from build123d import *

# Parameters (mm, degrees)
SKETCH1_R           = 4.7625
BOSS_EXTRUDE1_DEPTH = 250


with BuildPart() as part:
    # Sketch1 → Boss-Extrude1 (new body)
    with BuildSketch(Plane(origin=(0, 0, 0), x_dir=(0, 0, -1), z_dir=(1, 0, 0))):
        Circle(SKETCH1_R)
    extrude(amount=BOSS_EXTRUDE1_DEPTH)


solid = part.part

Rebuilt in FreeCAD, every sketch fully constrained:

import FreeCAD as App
import Part
import Sketcher

V = App.Vector
Q = App.Units.Quantity

doc = App.newDocument("Part")
body = doc.addObject("PartDesign::Body", "Body")

# Sketch on YZ plane
sketch1 = body.newObject("Sketcher::SketchObject", "Sketch")
sketch1.AttachmentSupport = (doc.getObject("YZ_Plane"), [""])
sketch1.MapMode = "FlatFace"
sketch1.addGeometry(Part.Circle(V(0, 0, 0), V(0, 0, 1), 4.8), False)
sketch1.addConstraint([
    Sketcher.Constraint("Coincident", 0, 3, -1, 1),
    Sketcher.Constraint("Diameter", 0, Q("9.525 mm")),
])
pad1 = body.newObject("PartDesign::Pad", "Pad")
pad1.Profile = sketch1
pad1.Length = 250

doc.recompute()
